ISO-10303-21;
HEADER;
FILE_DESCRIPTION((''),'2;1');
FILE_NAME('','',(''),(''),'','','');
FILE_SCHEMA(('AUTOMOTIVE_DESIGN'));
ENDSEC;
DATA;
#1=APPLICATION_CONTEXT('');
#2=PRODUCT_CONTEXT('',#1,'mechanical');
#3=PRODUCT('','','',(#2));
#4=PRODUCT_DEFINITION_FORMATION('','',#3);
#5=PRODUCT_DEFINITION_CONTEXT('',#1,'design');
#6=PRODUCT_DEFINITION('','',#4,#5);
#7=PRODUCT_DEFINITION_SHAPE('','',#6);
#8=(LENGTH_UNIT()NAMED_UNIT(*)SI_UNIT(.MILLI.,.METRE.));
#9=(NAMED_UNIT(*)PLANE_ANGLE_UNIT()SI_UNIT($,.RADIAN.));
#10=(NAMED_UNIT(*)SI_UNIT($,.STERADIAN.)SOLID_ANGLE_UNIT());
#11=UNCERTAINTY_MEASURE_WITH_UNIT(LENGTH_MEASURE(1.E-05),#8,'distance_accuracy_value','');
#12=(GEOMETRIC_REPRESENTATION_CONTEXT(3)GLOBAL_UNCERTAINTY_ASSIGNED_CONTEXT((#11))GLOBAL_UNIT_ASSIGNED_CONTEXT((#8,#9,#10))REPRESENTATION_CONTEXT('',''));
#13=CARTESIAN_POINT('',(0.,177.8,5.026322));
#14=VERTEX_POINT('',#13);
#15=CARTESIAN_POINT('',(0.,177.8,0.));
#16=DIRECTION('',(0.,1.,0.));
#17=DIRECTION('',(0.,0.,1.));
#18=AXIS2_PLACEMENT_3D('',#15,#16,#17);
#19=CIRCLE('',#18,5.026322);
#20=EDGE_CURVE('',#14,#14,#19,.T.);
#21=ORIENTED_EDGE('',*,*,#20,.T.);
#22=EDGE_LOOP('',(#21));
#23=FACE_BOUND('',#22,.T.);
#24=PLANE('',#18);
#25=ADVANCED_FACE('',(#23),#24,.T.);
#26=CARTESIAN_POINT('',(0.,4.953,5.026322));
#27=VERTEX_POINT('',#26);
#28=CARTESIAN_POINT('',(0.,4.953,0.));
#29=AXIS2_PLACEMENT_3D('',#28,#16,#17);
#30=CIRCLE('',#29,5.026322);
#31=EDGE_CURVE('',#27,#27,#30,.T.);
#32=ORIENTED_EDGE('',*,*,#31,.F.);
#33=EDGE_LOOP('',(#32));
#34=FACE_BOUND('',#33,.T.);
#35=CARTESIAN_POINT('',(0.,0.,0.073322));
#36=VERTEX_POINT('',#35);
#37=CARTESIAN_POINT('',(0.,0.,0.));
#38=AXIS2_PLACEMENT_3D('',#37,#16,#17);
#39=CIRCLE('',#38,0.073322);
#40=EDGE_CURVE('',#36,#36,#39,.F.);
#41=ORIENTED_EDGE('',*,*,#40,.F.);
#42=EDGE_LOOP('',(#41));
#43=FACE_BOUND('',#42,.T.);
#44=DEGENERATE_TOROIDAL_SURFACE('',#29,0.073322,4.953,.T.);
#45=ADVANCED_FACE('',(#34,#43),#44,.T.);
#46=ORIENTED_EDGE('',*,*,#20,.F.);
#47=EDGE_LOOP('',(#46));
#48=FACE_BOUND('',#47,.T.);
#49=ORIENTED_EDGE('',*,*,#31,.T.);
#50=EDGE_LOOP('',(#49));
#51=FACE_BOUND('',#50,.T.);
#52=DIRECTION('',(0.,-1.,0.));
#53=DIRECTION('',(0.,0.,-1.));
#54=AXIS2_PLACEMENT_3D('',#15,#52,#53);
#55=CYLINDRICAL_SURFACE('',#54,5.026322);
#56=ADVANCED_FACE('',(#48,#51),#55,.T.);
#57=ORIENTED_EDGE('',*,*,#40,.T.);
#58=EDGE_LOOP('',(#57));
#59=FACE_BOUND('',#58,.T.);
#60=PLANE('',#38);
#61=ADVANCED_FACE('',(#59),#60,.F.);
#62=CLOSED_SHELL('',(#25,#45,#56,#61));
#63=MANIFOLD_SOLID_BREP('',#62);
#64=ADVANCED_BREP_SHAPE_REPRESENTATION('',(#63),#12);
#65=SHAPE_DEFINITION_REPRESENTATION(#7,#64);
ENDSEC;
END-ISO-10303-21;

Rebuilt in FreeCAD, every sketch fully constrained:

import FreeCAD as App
import Part
import Sketcher
Q = App.Units.Quantity


def edges_at(feature, points):
    """Names of the edges that pass closest to the given points."""
    edges = feature.Shape.Edges
    near = lambda p: min(range(len(edges)), key=lambda i: edges[i].distToShape(Part.Vertex(*p))[0])
    return sorted({f"Edge{near(p) + 1}" for p in points})

doc = App.newDocument("Part")
body = doc.addObject("PartDesign::Body", "Body")

# Sketch on XZ plane
sketch1 = body.newObject("Sketcher::SketchObject", "Sketch")
sketch1.AttachmentSupport = (doc.getObject("XZ_Plane"), [""])
sketch1.MapMode = "FlatFace"
sketch1.addGeometry(Part.Circle(App.Vector(0, 0, 0), App.Vector(0, 0, 1), 5), False)
sketch1.addConstraint([
    Sketcher.Constraint("Coincident", 0, 3, -1, 1),
    Sketcher.Constraint("Diameter", 0, 10.052644),
])
pad1 = body.newObject("PartDesign::Pad", "Pad")
pad1.Profile = sketch1
pad1.Length = Q("7 in")
pad1.Reversed = True
doc.recompute()

fillet = body.newObject("PartDesign::Fillet", "Fillet")
fillet.Base = (pad1, edges_at(pad1, [(-5.026, 0, 0)]))
fillet.Radius = Q("0.195 in")

doc.recompute()
